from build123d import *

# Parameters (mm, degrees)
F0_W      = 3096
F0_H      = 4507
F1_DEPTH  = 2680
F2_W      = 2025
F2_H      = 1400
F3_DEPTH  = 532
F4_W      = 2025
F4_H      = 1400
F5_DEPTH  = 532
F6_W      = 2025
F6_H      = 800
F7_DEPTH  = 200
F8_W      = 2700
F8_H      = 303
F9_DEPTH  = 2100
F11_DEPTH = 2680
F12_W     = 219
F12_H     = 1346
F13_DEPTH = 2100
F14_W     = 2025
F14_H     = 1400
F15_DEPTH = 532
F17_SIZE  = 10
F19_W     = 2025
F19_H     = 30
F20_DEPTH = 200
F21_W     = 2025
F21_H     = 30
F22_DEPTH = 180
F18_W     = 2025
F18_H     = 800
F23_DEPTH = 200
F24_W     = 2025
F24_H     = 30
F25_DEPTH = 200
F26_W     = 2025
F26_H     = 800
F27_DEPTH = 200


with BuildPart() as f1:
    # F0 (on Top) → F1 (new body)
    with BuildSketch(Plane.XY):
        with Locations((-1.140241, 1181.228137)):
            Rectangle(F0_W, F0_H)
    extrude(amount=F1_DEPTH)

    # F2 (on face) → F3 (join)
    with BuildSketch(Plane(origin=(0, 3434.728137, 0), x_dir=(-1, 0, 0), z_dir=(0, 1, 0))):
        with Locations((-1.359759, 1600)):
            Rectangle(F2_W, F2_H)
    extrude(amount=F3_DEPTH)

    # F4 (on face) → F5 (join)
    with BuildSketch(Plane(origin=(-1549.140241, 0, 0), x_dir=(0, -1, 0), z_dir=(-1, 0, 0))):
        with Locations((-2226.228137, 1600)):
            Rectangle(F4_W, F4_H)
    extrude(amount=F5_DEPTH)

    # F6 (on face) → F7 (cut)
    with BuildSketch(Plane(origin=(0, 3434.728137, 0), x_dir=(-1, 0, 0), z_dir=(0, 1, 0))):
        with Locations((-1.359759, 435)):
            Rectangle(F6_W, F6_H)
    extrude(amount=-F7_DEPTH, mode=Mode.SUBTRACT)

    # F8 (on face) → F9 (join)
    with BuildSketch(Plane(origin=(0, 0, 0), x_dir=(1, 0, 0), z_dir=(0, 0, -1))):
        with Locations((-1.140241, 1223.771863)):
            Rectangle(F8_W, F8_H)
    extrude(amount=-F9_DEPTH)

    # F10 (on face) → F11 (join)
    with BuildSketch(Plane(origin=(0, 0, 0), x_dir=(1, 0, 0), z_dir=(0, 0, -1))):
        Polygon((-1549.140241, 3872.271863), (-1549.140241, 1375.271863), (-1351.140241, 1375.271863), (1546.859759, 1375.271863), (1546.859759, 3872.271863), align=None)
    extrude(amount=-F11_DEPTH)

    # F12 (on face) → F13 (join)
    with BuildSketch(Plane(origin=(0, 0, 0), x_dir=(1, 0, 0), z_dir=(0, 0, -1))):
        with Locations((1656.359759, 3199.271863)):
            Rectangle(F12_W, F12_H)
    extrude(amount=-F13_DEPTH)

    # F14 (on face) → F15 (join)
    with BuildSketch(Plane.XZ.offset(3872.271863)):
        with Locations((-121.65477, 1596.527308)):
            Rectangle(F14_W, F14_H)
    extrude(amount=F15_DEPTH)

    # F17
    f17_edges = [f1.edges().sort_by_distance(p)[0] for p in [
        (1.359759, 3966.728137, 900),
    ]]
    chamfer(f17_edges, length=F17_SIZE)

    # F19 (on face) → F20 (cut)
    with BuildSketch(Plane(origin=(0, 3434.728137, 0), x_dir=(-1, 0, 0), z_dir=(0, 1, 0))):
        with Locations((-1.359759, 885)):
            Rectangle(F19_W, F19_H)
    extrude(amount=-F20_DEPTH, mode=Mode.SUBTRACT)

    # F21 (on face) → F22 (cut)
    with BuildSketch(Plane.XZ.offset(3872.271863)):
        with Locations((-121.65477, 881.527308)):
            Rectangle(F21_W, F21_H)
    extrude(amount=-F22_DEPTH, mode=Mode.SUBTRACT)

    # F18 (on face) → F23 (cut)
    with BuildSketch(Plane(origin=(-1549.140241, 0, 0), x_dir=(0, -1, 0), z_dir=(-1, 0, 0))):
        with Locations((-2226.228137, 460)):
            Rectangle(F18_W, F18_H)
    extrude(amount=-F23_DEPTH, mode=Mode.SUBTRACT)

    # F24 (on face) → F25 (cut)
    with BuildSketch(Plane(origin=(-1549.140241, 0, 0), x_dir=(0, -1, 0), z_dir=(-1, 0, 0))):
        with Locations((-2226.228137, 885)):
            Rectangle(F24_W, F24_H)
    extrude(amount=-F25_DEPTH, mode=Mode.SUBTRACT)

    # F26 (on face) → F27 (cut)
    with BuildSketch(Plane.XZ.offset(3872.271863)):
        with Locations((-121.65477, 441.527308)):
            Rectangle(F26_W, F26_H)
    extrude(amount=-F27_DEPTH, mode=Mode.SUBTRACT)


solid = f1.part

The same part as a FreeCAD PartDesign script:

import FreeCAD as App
import Part
import Sketcher


def edges_at(feature, points):
    """Names of the edges that pass closest to the given points."""
    edges = feature.Shape.Edges
    near = lambda p: min(range(len(edges)), key=lambda i: edges[i].distToShape(Part.Vertex(*p))[0])
    return sorted({f"Edge{near(p) + 1}" for p in points})


def add_polygon(sketch, points):
    """Adds a closed chain of lines whose ends are joined by coincident constraints."""
    first, n = sketch.GeometryCount, len(points)
    for a, b in zip(points, points[1:] + points[:1]):
        sketch.addGeometry(Part.LineSegment(App.Vector(*a, 0), App.Vector(*b, 0)), False)
    for i in range(n):
        sketch.addConstraint(Sketcher.Constraint("Coincident", first + i, 2, first + (i + 1) % n, 1))

doc = App.newDocument("Part")
body = doc.addObject("PartDesign::Body", "Body")

# Sketch on XY plane
sketch1 = body.newObject("Sketcher::SketchObject", "Sketch")
sketch1.AttachmentSupport = (doc.getObject("XY_Plane"), [""])
sketch1.MapMode = "FlatFace"
add_polygon(sketch1, [(-1549, 3435), (-1549, -1072), (1547, -1072), (1547, 3435)])  # lines 0-3
sketch1.addConstraint(Sketcher.Constraint("Vertical", 0))
sketch1.addConstraint(Sketcher.Constraint("Horizontal", 1))
sketch1.addConstraint(Sketcher.Constraint("Vertical", 2))
sketch1.addConstraint(Sketcher.Constraint("Horizontal", 3))
sketch1.addConstraint(Sketcher.Constraint("DistanceX", 1, 1, 1, 2, 3096.0))
sketch1.addConstraint(Sketcher.Constraint("DistanceY", 0, 2, 0, 1, 4507.0))
sketch1.addConstraint(Sketcher.Constraint("DistanceX", 0, 2, -1, 1, 1549.140241))
sketch1.addConstraint(Sketcher.Constraint("DistanceY", 0, 2, -1, 1, 1072.271863))
pad1 = body.newObject("PartDesign::Pad", "Pad")
pad1.Profile = sketch1
pad1.Length = 2680

# Sketch on XZ plane
sketch2 = body.newObject("Sketcher::SketchObject", "Sketch001")
sketch2.AttachmentSupport = (doc.getObject("XZ_Plane"), [""])
sketch2.MapMode = "FlatFace"
sketch2.AttachmentOffset = App.Placement(App.Vector(0, 0, -3434.728137), App.Rotation())
add_polygon(sketch2, [(1014, 2300), (1014, 900), (-1011, 900), (-1011, 2300)])  # lines 0-3
sketch2.addConstraint(Sketcher.Constraint("Vertical", 0))
sketch2.addConstraint(Sketcher.Constraint("Horizontal", 1))
sketch2.addConstraint(Sketcher.Constraint("Vertical", 2))
sketch2.addConstraint(Sketcher.Constraint("Horizontal", 3))
sketch2.addConstraint(Sketcher.Constraint("DistanceX", 1, 2, 1, 1, 2025.0))
sketch2.addConstraint(Sketcher.Constraint("DistanceY", 0, 2, 0, 1, 1400.0))
sketch2.addConstraint(Sketcher.Constraint("DistanceY", -1, 1, 0, 2, 900.0))
sketch2.addConstraint(Sketcher.Constraint("DistanceX", -1, 1, 0, 2, 1013.859759))
pad2 = body.newObject("PartDesign::Pad", "Pad001")
pad2.Profile = sketch2
pad2.Length = 532
pad2.Reversed = True

# Sketch on YZ plane
sketch3 = body.newObject("Sketcher::SketchObject", "Sketch002")
sketch3.AttachmentSupport = (doc.getObject("YZ_Plane"), [""])
sketch3.MapMode = "FlatFace"
sketch3.AttachmentOffset = App.Placement(App.Vector(0, 0, -1549.140241), App.Rotation())
add_polygon(sketch3, [(3239, 2300), (3239, 900), (1214, 900), (1214, 2300)])  # lines 0-3
sketch3.addConstraint(Sketcher.Constraint("Vertical", 0))
sketch3.addConstraint(Sketcher.Constraint("Horizontal", 1))
sketch3.addConstraint(Sketcher.Constraint("Vertical", 2))
sketch3.addConstraint(Sketcher.Constraint("Horizontal", 3))
sketch3.addConstraint(Sketcher.Constraint("DistanceX", 1, 2, 1, 1, 2025.0))
sketch3.addConstraint(Sketcher.Constraint("DistanceY", 0, 2, 0, 1, 1400.0))
sketch3.addConstraint(Sketcher.Constraint("DistanceY", -1, 1, 0, 2, 900.0))
sketch3.addConstraint(Sketcher.Constraint("DistanceX", -1, 1, 0, 2, 3238.728137))
pad3 = body.newObject("PartDesign::Pad", "Pad002")
pad3.Profile = sketch3
pad3.Length = 532
pad3.Reversed = True

# Sketch on XZ plane
sketch4 = body.newObject("Sketcher::SketchObject", "Sketch003")
sketch4.AttachmentSupport = (doc.getObject("XZ_Plane"), [""])
sketch4.MapMode = "FlatFace"
sketch4.AttachmentOffset = App.Placement(App.Vector(0, 0, -3434.728137), App.Rotation())
add_polygon(sketch4, [(1014, 835), (1014, 35), (-1011, 35), (-1011, 835)])  # lines 0-3
sketch4.addConstraint(Sketcher.Constraint("Vertical", 0))
sketch4.addConstraint(Sketcher.Constraint("Horizontal", 1))
sketch4.addConstraint(Sketcher.Constraint("Vertical", 2))
sketch4.addConstraint(Sketcher.Constraint("Horizontal", 3))
sketch4.addConstraint(Sketcher.Constraint("DistanceX", 1, 2, 1, 1, 2025.0))
sketch4.addConstraint(Sketcher.Constraint("DistanceY", 0, 2, 0, 1, 800.0))
sketch4.addConstraint(Sketcher.Constraint("DistanceY", -1, 1, 0, 2, 35.0))
sketch4.addConstraint(Sketcher.Constraint("DistanceX", -1, 1, 0, 2, 1013.859759))
pocket1 = body.newObject("PartDesign::Pocket", "Pocket")
pocket1.Profile = sketch4
pocket1.Length = 200
pocket1.Reversed = True

# Sketch on XY plane
sketch5 = body.newObject("Sketcher::SketchObject", "Sketch004")
sketch5.AttachmentSupport = (doc.getObject("XY_Plane"), [""])
sketch5.MapMode = "FlatFace"
add_polygon(sketch5, [(-1351, -1375), (-1351, -1072), (1349, -1072), (1349, -1375)])  # lines 0-3
sketch5.addConstraint(Sketcher.Constraint("Vertical", 0))
sketch5.addConstraint(Sketcher.Constraint("Horizontal", 1))
sketch5.addConstraint(Sketcher.Constraint("Vertical", 2))
sketch5.addConstraint(Sketcher.Constraint("Horizontal", 3))
sketch5.addConstraint(Sketcher.Constraint("DistanceX", 1, 1, 1, 2, 2700.0))
sketch5.addConstraint(Sketcher.Constraint("DistanceY", 0, 1, 0, 2, 303.0))
sketch5.addConstraint(Sketcher.Constraint("DistanceX", 0, 2, -1, 1, 1351.140241))
sketch5.addConstraint(Sketcher.Constraint("DistanceY", 0, 2, -1, 1, 1072.271863))
pad4 = body.newObject("PartDesign::Pad", "Pad003")
pad4.Profile = sketch5
pad4.Length = 2100

# Sketch on XY plane
sketch6 = body.newObject("Sketcher::SketchObject", "Sketch005")
sketch6.AttachmentSupport = (doc.getObject("XY_Plane"), [""])
sketch6.MapMode = "FlatFace"
add_polygon(sketch6, [(-1549, -3872), (-1549, -1375), (1547, -1375), (1547, -3872)])  # lines 0-3
sketch6.addConstraint(Sketcher.Constraint("Vertical", 0))
sketch6.addConstraint(Sketcher.Constraint("Horizontal", 1))
sketch6.addConstraint(Sketcher.Constraint("Vertical", 2))
sketch6.addConstraint(Sketcher.Constraint("Horizontal", 3))
sketch6.addConstraint(Sketcher.Constraint("DistanceX", 1, 1, 1, 2, 3096.0))
sketch6.addConstraint(Sketcher.Constraint("DistanceY", 0, 1, 0, 2, 2497.0))
sketch6.addConstraint(Sketcher.Constraint("DistanceX", 0, 2, -1, 1, 1549.140241))
sketch6.addConstraint(Sketcher.Constraint("DistanceY", 0, 2, -1, 1, 1375.271863))
pad5 = body.newObject("PartDesign::Pad", "Pad004")
pad5.Profile = sketch6
pad5.Length = 2680

# Sketch on XY plane
sketch7 = body.newObject("Sketcher::SketchObject", "Sketch006")
sketch7.AttachmentSupport = (doc.getObject("XY_Plane"), [""])
sketch7.MapMode = "FlatFace"
add_polygon(sketch7, [(1547, -3872), (1547, -2526), (1766, -2526), (1766, -3872)])  # lines 0-3
sketch7.addConstraint(Sketcher.Constraint("Vertical", 0))
sketch7.addConstraint(Sketcher.Constraint("Horizontal", 1))
sketch7.addConstraint(Sketcher.Constraint("Vertical", 2))
sketch7.addConstraint(Sketcher.Constraint("Horizontal", 3))
sketch7.addConstraint(Sketcher.Constraint("DistanceX", 1, 1, 1, 2, 219.0))
sketch7.addConstraint(Sketcher.Constraint("DistanceY", 0, 1, 0, 2, 1346.0))
sketch7.addConstraint(Sketcher.Constraint("DistanceX", -1, 1, 0, 2, 1546.859759))
sketch7.addConstraint(Sketcher.Constraint("DistanceY", 0, 2, -1, 1, 2526.271863))
pad6 = body.newObject("PartDesign::Pad", "Pad005")
pad6.Profile = sketch7
pad6.Length = 2100

# Sketch on XZ plane
sketch8 = body.newObject("Sketcher::SketchObject", "Sketch007")
sketch8.AttachmentSupport = (doc.getObject("XZ_Plane"), [""])
sketch8.MapMode = "FlatFace"
sketch8.AttachmentOffset = App.Placement(App.Vector(0, 0, 3872.271863), App.Rotation())
add_polygon(sketch8, [(-1134, 2297), (-1134, 897), (891, 897), (891, 2297)])  # lines 0-3
sketch8.addConstraint(Sketcher.Constraint("Vertical", 0))
sketch8.addConstraint(Sketcher.Constraint("Horizontal", 1))
sketch8.addConstraint(Sketcher.Constraint("Vertical", 2))
sketch8.addConstraint(Sketcher.Constraint("Horizontal", 3))
sketch8.addConstraint(Sketcher.Constraint("DistanceX", 1, 1, 1, 2, 2025.0))
sketch8.addConstraint(Sketcher.Constraint("DistanceY", 0, 2, 0, 1, 1400.0))
sketch8.addConstraint(Sketcher.Constraint("DistanceX", 0, 2, -1, 1, 1134.15477))
sketch8.addConstraint(Sketcher.Constraint("DistanceY", -1, 1, 2, 2, 2296.527308))
pad7 = body.newObject("PartDesign::Pad", "Pad006")
pad7.Profile = sketch8
pad7.Length = 532
doc.recompute()

chamfer = body.newObject("PartDesign::Chamfer", "Chamfer")
chamfer.Base = (pad7, edges_at(pad7, [(1.36, 3966.728, 900)]))
chamfer.Size = 10

# Sketch on XZ plane
sketch9 = body.newObject("Sketcher::SketchObject", "Sketch008")
sketch9.AttachmentSupport = (doc.getObject("XZ_Plane"), [""])
sketch9.MapMode = "FlatFace"
sketch9.AttachmentOffset = App.Placement(App.Vector(0, 0, -3434.728137), App.Rotation())
add_polygon(sketch9, [(1014, 900), (1014, 870), (-1011, 870), (-1011, 900)])  # lines 0-3
sketch9.addConstraint(Sketcher.Constraint("Vertical", 0))
sketch9.addConstraint(Sketcher.Constraint("Horizontal", 1))
sketch9.addConstraint(Sketcher.Constraint("Vertical", 2))
sketch9.addConstraint(Sketcher.Constraint("Horizontal", 3))
sketch9.addConstraint(Sketcher.Constraint("DistanceX", 1, 2, 1, 1, 2025.0))
sketch9.addConstraint(Sketcher.Constraint("DistanceY", 0, 2, 0, 1, 30.0))
sketch9.addConstraint(Sketcher.Constraint("DistanceY", -1, 1, 0, 2, 870.0))
sketch9.addConstraint(Sketcher.Constraint("DistanceX", -1, 1, 0, 2, 1013.859759))
pocket2 = body.newObject("PartDesign::Pocket", "Pocket001")
pocket2.Profile = sketch9
pocket2.Length = 200
pocket2.Reversed = True

# Sketch on XZ plane
sketch10 = body.newObject("Sketcher::SketchObject", "Sketch009")
sketch10.AttachmentSupport = (doc.getObject("XZ_Plane"), [""])
sketch10.MapMode = "FlatFace"
sketch10.AttachmentOffset = App.Placement(App.Vector(0, 0, 3872.271863), App.Rotation())
add_polygon(sketch10, [(-1134, 897), (-1134, 867), (891, 867), (891, 897)])  # lines 0-3
sketch10.addConstraint(Sketcher.Constraint("Vertical", 0))
sketch10.addConstraint(Sketcher.Constraint("Horizontal", 1))
sketch10.addConstraint(Sketcher.Constraint("Vertical", 2))
sketch10.addConstraint(Sketcher.Constraint("Horizontal", 3))
sketch10.addConstraint(Sketcher.Constraint("DistanceX", 1, 1, 1, 2, 2025.0))
sketch10.addConstraint(Sketcher.Constraint("DistanceY", 0, 2, 0, 1, 30.0))
sketch10.addConstraint(Sketcher.Constraint("DistanceX", 0, 2, -1, 1, 1134.15477))
sketch10.addConstraint(Sketcher.Constraint("DistanceY", -1, 1, 0, 2, 866.527308))
pocket3 = body.newObject("PartDesign::Pocket", "Pocket002")
pocket3.Profile = sketch10
pocket3.Length = 180

# Sketch on YZ plane
sketch11 = body.newObject("Sketcher::SketchObject", "Sketch010")
sketch11.AttachmentSupport = (doc.getObject("YZ_Plane"), [""])
sketch11.MapMode = "FlatFace"
sketch11.AttachmentOffset = App.Placement(App.Vector(0, 0, -1549.140241), App.Rotation())
add_polygon(sketch11, [(3239, 860), (3239, 60), (1214, 60), (1214, 860)])  # lines 0-3
sketch11.addConstraint(Sketcher.Constraint("Vertical", 0))
sketch11.addConstraint(Sketcher.Constraint("Horizontal", 1))
sketch11.addConstraint(Sketcher.Constraint("Vertical", 2))
sketch11.addConstraint(Sketcher.Constraint("Horizontal", 3))
sketch11.addConstraint(Sketcher.Constraint("DistanceX", 1, 2, 1, 1, 2025.0))
sketch11.addConstraint(Sketcher.Constraint("DistanceY", 0, 2, 0, 1, 800.0))
sketch11.addConstraint(Sketcher.Constraint("DistanceY", -1, 1, 0, 2, 60.0))
sketch11.addConstraint(Sketcher.Constraint("DistanceX", -1, 1, 0, 2, 3238.728137))
pocket4 = body.newObject("PartDesign::Pocket", "Pocket003")
pocket4.Profile = sketch11
pocket4.Length = 200
pocket4.Reversed = True

# Sketch on YZ plane
sketch12 = body.newObject("Sketcher::SketchObject", "Sketch011")
sketch12.AttachmentSupport = (doc.getObject("YZ_Plane"), [""])
sketch12.MapMode = "FlatFace"
sketch12.AttachmentOffset = App.Placement(App.Vector(0, 0, -1549.140241), App.Rotation())
add_polygon(sketch12, [(3239, 900), (3239, 870), (1214, 870), (1214, 900)])  # lines 0-3
sketch12.addConstraint(Sketcher.Constraint("Vertical", 0))
sketch12.addConstraint(Sketcher.Constraint("Horizontal", 1))
sketch12.addConstraint(Sketcher.Constraint("Vertical", 2))
sketch12.addConstraint(Sketcher.Constraint("Horizontal", 3))
sketch12.addConstraint(Sketcher.Constraint("DistanceX", 1, 2, 1, 1, 2025.0))
sketch12.addConstraint(Sketcher.Constraint("DistanceY", 0, 2, 0, 1, 30.0))
sketch12.addConstraint(Sketcher.Constraint("DistanceY", -1, 1, 0, 2, 870.0))
sketch12.addConstraint(Sketcher.Constraint("DistanceX", -1, 1, 0, 2, 3238.728137))
pocket5 = body.newObject("PartDesign::Pocket", "Pocket004")
pocket5.Profile = sketch12
pocket5.Length = 200
pocket5.Reversed = True

# Sketch on XZ plane
sketch13 = body.newObject("Sketcher::SketchObject", "Sketch012")
sketch13.AttachmentSupport = (doc.getObject("XZ_Plane"), [""])
sketch13.MapMode = "FlatFace"
sketch13.AttachmentOffset = App.Placement(App.Vector(0, 0, 3872.271863), App.Rotation())
add_polygon(sketch13, [(-1134, 842), (-1134, 42), (891, 42), (891, 842)])  # lines 0-3
sketch13.addConstraint(Sketcher.Constraint("Vertical", 0))
sketch13.addConstraint(Sketcher.Constraint("Horizontal", 1))
sketch13.addConstraint(Sketcher.Constraint("Vertical", 2))
sketch13.addConstraint(Sketcher.Constraint("Horizontal", 3))
sketch13.addConstraint(Sketcher.Constraint("DistanceX", 1, 1, 1, 2, 2025.0))
sketch13.addConstraint(Sketcher.Constraint("DistanceY", 0, 2, 0, 1, 800.0))
sketch13.addConstraint(Sketcher.Constraint("DistanceX", 0, 2, -1, 1, 1134.15477))
sketch13.addConstraint(Sketcher.Constraint("DistanceY", -1, 1, 0, 2, 41.527308))
pocket6 = body.newObject("PartDesign::Pocket", "Pocket005")
pocket6.Profile = sketch13
pocket6.Length = 200

doc.recompute()
